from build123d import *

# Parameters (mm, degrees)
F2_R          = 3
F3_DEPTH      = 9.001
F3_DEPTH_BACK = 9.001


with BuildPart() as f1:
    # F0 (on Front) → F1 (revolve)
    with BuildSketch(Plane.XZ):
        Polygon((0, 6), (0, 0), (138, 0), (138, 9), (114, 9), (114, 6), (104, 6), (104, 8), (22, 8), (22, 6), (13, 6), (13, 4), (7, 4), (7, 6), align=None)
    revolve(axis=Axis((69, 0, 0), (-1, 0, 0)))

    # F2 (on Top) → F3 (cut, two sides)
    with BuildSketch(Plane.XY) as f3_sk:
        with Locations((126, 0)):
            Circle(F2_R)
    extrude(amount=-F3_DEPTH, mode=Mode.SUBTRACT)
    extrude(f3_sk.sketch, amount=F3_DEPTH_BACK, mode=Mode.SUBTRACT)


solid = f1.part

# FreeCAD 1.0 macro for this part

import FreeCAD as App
import Part
import Sketcher


def add_polygon(sketch, points):
    """Adds a closed chain of lines whose ends are joined by coincident constraints."""
    first, n = sketch.GeometryCount, len(points)
    for a, b in zip(points, points[1:] + points[:1]):
        sketch.addGeometry(Part.LineSegment(App.Vector(*a, 0), App.Vector(*b, 0)), False)
    for i in range(n):
        sketch.addConstraint(Sketcher.Constraint("Coincident", first + i, 2, first + (i + 1) % n, 1))

doc = App.newDocument("Part")
body = doc.addObject("PartDesign::Body", "Body")

# Sketch on XZ plane
sketch1 = body.newObject("Sketcher::SketchObject", "Sketch")
sketch1.AttachmentSupport = (doc.getObject("XZ_Plane"), [""])
sketch1.MapMode = "FlatFace"
add_polygon(sketch1, [(0, 6), (0, 0), (138, 0), (138, 9), (114, 9), (114, 6), (104, 6), (104, 8), (22, 8), (22, 6), (13, 6), (13, 4), (7, 4), (7, 6)])  # lines 0-13
sketch1.addConstraint([
    Sketcher.Constraint("Vertical", 0),
    Sketcher.Constraint("Horizontal", 1),
    Sketcher.Constraint("Vertical", 2),
    Sketcher.Constraint("Horizontal", 3),
    Sketcher.Constraint("Vertical", 4),
    Sketcher.Constraint("Horizontal", 5),
    Sketcher.Constraint("Vertical", 6),
    Sketcher.Constraint("Horizontal", 7),
    Sketcher.Constraint("Vertical", 8),
    Sketcher.Constraint("Horizontal", 9),
    Sketcher.Constraint("Vertical", 10),
    Sketcher.Constraint("Horizontal", 11),
    Sketcher.Constraint("Vertical", 12),
    Sketcher.Constraint("Horizontal", 13),
    Sketcher.Constraint("Coincident", 0, 2, -1, 1),
    Sketcher.Constraint("Horizontal", 5, 2, 8, 2),
    Sketcher.Constraint("Horizontal", 9, 2, 12, 2),
    Sketcher.Constraint("Equal", 11, 0),
    Sketcher.Constraint("Equal", 9, 2),
    Sketcher.Constraint("Equal", 8, 10),
    Sketcher.Constraint("DistanceX", 1, 1, 1, 2, 138.0),
    Sketcher.Constraint("DistanceX", 3, 2, 3, 1, 24.0),
    Sketcher.Constraint("DistanceX", 5, 2, 5, 1, 10.0),
    Sketcher.Constraint("DistanceX", 7, 2, 7, 1, 82.0),
    Sketcher.Constraint("DistanceX", 9, 2, 9, 1, 9.0),
    Sketcher.Constraint("DistanceX", 11, 2, 11, 1, 6.0),
    Sketcher.Constraint("DistanceY", 6, 1, 6, 2, 2.0),
])
revolution = body.newObject("PartDesign::Revolution", "Revolution")
revolution.Profile = sketch1
revolution.ReferenceAxis = (sketch1, ["H_Axis"])
revolution.Angle = 360

# Sketch on XY plane
sketch2 = body.newObject("Sketcher::SketchObject", "Sketch001")
sketch2.AttachmentSupport = (doc.getObject("XY_Plane"), [""])
sketch2.MapMode = "FlatFace"
sketch2.addGeometry(Part.Circle(App.Vector(126, 0, 0), App.Vector(0, 0, 1), 3), False)
sketch2.addConstraint([
    Sketcher.Constraint("PointOnObject", 0, 3, -1),
    Sketcher.Constraint("Diameter", 0, 6.0),
    Sketcher.Constraint("DistanceX", -1, 1, 0, 3, 126.0),
])
pocket1 = body.newObject("PartDesign::Pocket", "Pocket")
pocket1.Profile = sketch2
pocket1.Type = "ThroughAll"
pocket1.Midplane = True

doc.recompute()
